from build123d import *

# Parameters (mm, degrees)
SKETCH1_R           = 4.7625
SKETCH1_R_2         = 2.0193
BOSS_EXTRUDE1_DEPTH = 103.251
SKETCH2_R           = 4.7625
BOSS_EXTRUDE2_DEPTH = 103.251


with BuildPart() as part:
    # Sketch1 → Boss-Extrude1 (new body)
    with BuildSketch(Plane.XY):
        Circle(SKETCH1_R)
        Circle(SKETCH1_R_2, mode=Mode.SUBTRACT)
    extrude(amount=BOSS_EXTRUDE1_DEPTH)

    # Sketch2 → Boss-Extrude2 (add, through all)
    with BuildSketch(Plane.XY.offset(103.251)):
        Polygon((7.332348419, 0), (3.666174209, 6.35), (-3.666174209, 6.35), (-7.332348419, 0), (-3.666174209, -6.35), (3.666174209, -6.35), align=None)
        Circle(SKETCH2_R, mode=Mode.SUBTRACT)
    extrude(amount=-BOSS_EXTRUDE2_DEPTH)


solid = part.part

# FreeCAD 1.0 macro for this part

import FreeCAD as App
import Part
import Sketcher
from FreeCAD import Vector
Q = App.Units.Quantity

doc = App.newDocument("Part")
params = doc.addObject("Spreadsheet::Sheet", "Params")
for row, (alias, value) in enumerate([
    ("sketch1_diameter", "0.375 in"),
    ("sketch1_diameter2", "0.159 in"),
    ("pad1_length", "4.065 in"),
    ("sketch2_diameter", "0.375 in"),
    ("pad2_length", "4.065 in"),
], start=1):
    params.set(f"A{row}", alias)
    params.set(f"B{row}", "=" + value)
    params.setAlias(f"B{row}", alias)

body = doc.addObject("PartDesign::Body", "Body")

# Sketch on XY plane
sketch1 = doc.addObject("Sketcher::SketchObject", "Sketch")
body.addObject(sketch1)
sketch1.AttachmentSupport = (doc.XY_Plane, [""])
sketch1.MapMode = "FlatFace"
sketch1.addGeometry(Part.Circle(Vector(0, 0, 0), Vector(0, 0, 1), 4.8), False)
sketch1.addGeometry(Part.Circle(Vector(0, 0, 0), Vector(0, 0, 1), 2), False)
sketch1.addConstraint(Sketcher.Constraint("Coincident", 0, 3, -1, 1))
sketch1.addConstraint(Sketcher.Constraint("Coincident", 1, 3, -1, 1))
sketch1.addConstraint(Sketcher.Constraint("Diameter", 0, Q("0.375 in")))
sketch1.addConstraint(Sketcher.Constraint("Diameter", 1, Q("0.159 in")))
sketch1.setExpression("Constraints[2]", "Params.sketch1_diameter")
sketch1.setExpression("Constraints[3]", "Params.sketch1_diameter2")
pad1 = doc.addObject("PartDesign::Pad", "Pad")
body.addObject(pad1)
pad1.Profile = sketch1
pad1.setExpression("Length", "Params.pad1_length")

# Sketch on XY plane
sketch2 = doc.addObject("Sketcher::SketchObject", "Sketch001")
body.addObject(sketch2)
sketch2.AttachmentSupport = (doc.XY_Plane, [""])
sketch2.MapMode = "FlatFace"
sketch2.AttachmentOffset = App.Placement(Vector(0, 0, 4.065 * 25.4), App.Rotation())
sketch2.addGeometry(Part.LineSegment(Vector(7.3, 0, 0), Vector(3.7, 6.3, 0)), False)
sketch2.addGeometry(Part.LineSegment(Vector(3.7, 6.3, 0), Vector(-3.7, 6.3, 0)), False)
sketch2.addGeometry(Part.LineSegment(Vector(-3.7, 6.3, 0), Vector(-7.3, 0, 0)), False)
sketch2.addGeometry(Part.LineSegment(Vector(-7.3, 0, 0), Vector(-3.7, -6.3, 0)), False)
sketch2.addGeometry(Part.LineSegment(Vector(-3.7, -6.3, 0), Vector(3.7, -6.3, 0)), False)
sketch2.addGeometry(Part.LineSegment(Vector(3.7, -6.3, 0), Vector(7.3, 0, 0)), False)
sketch2.addGeometry(Part.Circle(Vector(0, 0, 0), Vector(0, 0, 1), 4.8), False)
sketch2.addConstraint(Sketcher.Constraint("Coincident", 0, 2, 1, 1))
sketch2.addConstraint(Sketcher.Constraint("Coincident", 1, 2, 2, 1))
sketch2.addConstraint(Sketcher.Constraint("Coincident", 2, 2, 3, 1))
sketch2.addConstraint(Sketcher.Constraint("Coincident", 3, 2, 4, 1))
sketch2.addConstraint(Sketcher.Constraint("Coincident", 4, 2, 5, 1))
sketch2.addConstraint(Sketcher.Constraint("Coincident", 5, 2, 0, 1))
sketch2.addConstraint(Sketcher.Constraint("Horizontal", 1))
sketch2.addConstraint(Sketcher.Constraint("Horizontal", 4))
sketch2.addConstraint(Sketcher.Constraint("Coincident", 6, 3, -1, 1))
sketch2.addConstraint(Sketcher.Constraint("Symmetric", 0, 2, 3, 2, -1, 1))
sketch2.addConstraint(Sketcher.Constraint("Symmetric", 2, 2, 5, 2, -1, 1))
sketch2.addConstraint(Sketcher.Constraint("PointOnObject", 2, 2, -1))
sketch2.addConstraint(Sketcher.Constraint("Parallel", 2, 5))
sketch2.addConstraint(Sketcher.Constraint("Vertical", 1, 2, 3, 2))
sketch2.addConstraint(Sketcher.Constraint("Diameter", 6, Q("0.375 in")))
sketch2.addConstraint(Sketcher.Constraint("Angle", 0, Q("120 deg")))
sketch2.addConstraint(Sketcher.Constraint("DistanceY", 3, 2, 1, 2, Q("0.5 in")))
sketch2.addConstraint(Sketcher.Constraint("DistanceX", 1, 2, 1, 1, 7.332348))
sketch2.setExpression("Constraints[14]", "Params.sketch2_diameter")
pad2 = doc.addObject("PartDesign::Pad", "Pad001")
body.addObject(pad2)
pad2.Profile = sketch2
pad2.setExpression("Length", "Params.pad2_length")
pad2.Reversed = True

doc.recompute()
